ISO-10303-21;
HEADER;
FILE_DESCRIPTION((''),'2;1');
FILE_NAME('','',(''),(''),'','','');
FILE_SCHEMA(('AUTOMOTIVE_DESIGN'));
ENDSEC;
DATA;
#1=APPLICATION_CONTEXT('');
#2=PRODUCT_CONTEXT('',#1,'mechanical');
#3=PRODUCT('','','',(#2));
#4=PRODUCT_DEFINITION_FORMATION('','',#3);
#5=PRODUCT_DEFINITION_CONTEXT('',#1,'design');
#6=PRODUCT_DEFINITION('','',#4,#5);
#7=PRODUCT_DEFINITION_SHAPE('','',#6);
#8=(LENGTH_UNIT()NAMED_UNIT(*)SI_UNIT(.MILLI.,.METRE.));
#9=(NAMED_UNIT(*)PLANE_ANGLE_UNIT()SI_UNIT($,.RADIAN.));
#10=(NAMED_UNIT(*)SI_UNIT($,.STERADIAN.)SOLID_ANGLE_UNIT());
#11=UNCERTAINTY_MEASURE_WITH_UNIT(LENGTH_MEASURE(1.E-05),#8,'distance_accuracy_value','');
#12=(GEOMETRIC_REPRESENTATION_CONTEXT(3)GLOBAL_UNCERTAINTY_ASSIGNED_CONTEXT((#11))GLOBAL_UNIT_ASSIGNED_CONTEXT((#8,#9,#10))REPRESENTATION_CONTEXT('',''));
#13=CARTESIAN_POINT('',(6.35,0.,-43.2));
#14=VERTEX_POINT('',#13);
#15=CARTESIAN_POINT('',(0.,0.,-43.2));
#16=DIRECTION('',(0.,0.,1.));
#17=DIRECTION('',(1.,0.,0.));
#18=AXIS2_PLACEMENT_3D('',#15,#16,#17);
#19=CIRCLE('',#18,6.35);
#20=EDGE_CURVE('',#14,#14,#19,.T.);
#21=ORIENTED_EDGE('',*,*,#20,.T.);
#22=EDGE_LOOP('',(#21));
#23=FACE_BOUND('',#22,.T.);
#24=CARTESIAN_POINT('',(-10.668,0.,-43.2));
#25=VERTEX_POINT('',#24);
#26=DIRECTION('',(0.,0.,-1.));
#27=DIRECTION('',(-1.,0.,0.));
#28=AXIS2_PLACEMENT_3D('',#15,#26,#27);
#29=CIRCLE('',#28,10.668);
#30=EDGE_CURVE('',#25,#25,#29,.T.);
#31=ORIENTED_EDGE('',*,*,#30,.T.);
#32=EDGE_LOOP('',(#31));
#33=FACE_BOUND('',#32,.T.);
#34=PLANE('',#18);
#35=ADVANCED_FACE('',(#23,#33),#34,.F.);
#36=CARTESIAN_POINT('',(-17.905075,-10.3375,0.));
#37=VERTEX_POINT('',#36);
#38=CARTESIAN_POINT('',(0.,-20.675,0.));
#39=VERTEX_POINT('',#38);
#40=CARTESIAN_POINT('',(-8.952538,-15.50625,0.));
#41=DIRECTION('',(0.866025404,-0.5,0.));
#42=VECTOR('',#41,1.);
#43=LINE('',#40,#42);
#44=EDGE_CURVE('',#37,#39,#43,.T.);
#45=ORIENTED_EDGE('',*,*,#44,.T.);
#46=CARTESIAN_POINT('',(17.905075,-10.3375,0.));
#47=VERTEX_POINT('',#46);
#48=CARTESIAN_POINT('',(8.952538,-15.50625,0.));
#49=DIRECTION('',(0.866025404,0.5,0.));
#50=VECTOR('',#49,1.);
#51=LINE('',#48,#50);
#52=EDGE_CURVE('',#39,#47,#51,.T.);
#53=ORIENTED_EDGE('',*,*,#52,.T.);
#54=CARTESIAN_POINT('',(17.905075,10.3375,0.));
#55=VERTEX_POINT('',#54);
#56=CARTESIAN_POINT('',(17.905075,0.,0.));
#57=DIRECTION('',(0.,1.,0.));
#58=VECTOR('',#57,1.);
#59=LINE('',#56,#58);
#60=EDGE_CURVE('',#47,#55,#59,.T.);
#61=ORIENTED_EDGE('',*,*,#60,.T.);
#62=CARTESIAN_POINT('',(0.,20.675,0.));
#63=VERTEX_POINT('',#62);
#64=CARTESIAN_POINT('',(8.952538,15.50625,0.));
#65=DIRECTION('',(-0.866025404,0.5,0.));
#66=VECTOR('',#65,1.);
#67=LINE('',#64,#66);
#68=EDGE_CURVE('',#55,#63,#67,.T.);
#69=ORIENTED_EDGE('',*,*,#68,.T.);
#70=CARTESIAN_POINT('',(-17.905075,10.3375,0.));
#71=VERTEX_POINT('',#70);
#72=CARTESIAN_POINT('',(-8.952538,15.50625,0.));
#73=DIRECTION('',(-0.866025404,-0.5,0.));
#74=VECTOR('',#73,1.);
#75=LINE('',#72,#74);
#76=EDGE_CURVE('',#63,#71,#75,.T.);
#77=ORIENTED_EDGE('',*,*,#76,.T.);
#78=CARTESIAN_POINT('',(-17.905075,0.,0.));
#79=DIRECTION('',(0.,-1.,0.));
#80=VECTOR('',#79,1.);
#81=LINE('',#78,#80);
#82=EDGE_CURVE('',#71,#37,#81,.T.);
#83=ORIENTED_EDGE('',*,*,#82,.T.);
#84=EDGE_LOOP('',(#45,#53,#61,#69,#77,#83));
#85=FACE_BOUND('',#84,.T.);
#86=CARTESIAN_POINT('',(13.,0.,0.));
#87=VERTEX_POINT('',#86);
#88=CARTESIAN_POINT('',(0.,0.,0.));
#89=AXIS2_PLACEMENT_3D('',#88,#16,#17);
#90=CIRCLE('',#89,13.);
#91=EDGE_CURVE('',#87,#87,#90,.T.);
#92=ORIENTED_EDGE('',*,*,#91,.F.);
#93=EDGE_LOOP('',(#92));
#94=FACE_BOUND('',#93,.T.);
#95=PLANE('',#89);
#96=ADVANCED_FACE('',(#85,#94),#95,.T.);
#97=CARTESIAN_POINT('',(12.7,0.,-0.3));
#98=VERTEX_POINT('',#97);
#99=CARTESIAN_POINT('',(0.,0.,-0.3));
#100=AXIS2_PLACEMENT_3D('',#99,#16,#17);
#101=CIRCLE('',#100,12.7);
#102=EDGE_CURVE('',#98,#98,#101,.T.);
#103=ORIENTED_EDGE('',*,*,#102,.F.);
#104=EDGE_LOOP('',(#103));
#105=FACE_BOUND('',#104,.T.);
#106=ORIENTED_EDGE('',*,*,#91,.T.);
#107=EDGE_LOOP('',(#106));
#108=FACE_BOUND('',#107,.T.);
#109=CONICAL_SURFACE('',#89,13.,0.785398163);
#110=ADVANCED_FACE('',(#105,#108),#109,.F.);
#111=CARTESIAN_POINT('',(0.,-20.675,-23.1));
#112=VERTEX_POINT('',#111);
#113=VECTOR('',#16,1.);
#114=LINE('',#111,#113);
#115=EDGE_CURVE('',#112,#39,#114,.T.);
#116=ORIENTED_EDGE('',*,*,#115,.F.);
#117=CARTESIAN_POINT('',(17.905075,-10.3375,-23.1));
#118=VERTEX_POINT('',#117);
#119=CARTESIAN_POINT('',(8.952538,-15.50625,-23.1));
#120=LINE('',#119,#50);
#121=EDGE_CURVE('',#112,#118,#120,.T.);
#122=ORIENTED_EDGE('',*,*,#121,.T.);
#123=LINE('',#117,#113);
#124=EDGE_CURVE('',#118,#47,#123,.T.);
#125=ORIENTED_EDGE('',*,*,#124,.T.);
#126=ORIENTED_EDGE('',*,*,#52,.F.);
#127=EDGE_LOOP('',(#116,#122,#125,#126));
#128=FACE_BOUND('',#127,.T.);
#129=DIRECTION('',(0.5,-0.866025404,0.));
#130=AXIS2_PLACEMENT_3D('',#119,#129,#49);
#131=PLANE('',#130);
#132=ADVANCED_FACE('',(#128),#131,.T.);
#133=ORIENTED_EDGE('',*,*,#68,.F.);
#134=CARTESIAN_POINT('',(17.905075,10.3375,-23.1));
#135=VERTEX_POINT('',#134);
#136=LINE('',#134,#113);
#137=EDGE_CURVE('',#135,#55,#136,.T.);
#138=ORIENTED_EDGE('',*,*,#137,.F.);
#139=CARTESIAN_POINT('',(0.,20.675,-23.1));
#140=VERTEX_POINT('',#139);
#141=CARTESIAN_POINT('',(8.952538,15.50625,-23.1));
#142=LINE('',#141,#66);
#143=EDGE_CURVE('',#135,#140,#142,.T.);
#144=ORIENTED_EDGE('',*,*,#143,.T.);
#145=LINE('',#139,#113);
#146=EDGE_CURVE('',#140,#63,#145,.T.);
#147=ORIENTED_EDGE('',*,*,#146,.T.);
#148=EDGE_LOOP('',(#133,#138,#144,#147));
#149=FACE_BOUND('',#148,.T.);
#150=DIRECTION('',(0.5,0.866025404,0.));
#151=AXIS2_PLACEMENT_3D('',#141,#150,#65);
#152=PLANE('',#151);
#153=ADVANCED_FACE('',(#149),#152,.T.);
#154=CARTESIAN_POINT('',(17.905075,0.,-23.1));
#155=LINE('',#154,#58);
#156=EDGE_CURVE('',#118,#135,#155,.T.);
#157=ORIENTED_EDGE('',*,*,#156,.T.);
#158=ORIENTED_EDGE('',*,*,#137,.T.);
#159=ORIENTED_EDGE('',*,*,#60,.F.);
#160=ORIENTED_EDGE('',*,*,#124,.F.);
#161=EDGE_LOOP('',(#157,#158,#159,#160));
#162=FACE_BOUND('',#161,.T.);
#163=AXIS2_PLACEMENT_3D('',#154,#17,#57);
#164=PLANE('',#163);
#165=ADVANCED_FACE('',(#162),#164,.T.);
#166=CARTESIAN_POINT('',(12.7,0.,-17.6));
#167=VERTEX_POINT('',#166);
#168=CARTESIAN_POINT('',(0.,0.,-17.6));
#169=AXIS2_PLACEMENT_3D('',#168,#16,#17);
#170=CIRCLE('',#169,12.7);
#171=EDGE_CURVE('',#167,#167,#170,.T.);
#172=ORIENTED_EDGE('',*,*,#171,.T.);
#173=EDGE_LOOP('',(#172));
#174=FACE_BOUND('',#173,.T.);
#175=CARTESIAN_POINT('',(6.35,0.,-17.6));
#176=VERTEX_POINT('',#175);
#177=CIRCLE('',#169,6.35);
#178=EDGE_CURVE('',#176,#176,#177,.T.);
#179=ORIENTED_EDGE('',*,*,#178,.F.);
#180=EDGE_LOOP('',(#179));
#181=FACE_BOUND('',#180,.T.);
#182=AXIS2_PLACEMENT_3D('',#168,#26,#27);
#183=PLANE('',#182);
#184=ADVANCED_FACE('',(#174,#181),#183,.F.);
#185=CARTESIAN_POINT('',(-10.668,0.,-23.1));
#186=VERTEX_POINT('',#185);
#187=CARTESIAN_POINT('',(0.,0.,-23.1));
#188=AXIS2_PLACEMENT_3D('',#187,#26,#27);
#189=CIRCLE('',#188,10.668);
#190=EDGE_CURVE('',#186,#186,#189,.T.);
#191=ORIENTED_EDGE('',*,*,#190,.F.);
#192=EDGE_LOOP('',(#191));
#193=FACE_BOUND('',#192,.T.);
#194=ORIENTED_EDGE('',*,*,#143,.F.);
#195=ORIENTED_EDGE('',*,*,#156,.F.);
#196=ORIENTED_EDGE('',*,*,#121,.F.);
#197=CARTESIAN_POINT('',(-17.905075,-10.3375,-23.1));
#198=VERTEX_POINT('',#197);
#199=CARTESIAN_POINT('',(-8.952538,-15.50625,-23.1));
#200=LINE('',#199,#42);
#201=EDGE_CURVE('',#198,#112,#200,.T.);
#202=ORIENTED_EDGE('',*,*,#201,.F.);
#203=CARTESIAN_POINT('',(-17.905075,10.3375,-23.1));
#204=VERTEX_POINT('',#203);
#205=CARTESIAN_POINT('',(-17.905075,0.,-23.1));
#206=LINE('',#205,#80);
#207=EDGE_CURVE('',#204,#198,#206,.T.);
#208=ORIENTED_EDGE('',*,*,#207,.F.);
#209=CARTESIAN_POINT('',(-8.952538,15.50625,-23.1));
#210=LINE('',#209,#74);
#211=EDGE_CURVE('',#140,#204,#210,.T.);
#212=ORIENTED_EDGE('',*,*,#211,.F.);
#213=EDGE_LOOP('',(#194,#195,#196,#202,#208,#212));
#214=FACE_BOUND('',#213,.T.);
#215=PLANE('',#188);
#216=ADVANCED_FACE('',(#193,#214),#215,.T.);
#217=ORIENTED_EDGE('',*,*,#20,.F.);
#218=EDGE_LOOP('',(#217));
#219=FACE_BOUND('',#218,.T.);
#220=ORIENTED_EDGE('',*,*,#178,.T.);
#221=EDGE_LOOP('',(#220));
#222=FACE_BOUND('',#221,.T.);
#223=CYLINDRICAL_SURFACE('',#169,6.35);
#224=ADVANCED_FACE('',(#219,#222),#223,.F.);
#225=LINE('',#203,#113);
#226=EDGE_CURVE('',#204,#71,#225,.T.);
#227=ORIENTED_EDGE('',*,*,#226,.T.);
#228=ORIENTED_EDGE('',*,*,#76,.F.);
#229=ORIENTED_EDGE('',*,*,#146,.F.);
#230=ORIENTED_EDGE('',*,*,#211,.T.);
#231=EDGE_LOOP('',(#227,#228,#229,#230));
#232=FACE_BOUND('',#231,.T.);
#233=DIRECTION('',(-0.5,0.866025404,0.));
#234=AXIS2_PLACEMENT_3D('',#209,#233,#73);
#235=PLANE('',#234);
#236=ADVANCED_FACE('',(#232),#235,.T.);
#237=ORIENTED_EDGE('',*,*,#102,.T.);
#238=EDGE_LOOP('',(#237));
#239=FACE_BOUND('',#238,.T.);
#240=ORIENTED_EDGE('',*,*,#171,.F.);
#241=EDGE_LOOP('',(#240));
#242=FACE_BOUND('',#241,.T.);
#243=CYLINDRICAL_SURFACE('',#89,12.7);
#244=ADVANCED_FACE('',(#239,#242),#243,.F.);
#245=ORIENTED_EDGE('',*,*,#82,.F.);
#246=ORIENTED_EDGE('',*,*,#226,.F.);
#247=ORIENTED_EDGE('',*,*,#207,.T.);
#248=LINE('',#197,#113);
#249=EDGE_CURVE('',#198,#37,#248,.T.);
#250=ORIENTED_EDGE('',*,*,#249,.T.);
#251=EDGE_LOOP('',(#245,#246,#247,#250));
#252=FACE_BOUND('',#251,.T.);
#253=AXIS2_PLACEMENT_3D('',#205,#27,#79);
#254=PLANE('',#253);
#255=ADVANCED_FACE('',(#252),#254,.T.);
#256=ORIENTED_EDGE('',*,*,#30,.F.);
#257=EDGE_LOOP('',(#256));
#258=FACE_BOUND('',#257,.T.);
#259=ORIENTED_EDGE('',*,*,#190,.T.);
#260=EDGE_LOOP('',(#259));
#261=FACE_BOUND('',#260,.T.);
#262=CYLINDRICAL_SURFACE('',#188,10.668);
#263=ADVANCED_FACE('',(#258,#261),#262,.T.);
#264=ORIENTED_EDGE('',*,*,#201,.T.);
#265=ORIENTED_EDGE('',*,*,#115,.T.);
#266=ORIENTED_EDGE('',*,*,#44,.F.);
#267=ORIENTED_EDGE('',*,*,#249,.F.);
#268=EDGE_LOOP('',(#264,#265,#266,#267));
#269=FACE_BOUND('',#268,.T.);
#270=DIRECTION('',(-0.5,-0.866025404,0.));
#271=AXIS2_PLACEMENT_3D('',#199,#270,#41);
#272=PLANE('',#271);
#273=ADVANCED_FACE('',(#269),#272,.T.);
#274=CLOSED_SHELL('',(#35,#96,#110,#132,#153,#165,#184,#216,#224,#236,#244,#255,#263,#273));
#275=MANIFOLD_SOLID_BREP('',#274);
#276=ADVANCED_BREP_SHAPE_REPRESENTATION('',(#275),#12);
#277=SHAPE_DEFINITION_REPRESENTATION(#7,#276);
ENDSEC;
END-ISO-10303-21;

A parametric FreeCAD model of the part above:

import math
import FreeCAD as App
import Part
import Sketcher
from FreeCAD import Vector
Q = App.Units.Quantity

doc = App.newDocument("Part")
params = doc.addObject("Spreadsheet::Sheet", "Params")
for row, (alias, value) in enumerate([
    ("sketch1_diameter", "41.35 mm"),
    ("pad1_length", "43.2 mm"),
    ("pocket1_length", "23.1 mm"),
    ("sketch3_diameter", "25.4 mm"),
    ("hole_diameter", "25.4 mm"),
    ("hole_depth", "17.6 mm"),
    ("hole_csink_diameter", "26 mm"),
    ("sketch4_diameter", "12.7 mm"),
    ("hole2_diameter", "12.7 mm"),
    ("sketch5_diameter", "41.35 mm"),
    ("pocket2_length", "20.1 mm"),
], start=1):
    params.set(f"A{row}", alias)
    params.set(f"B{row}", "=" + value)
    params.setAlias(f"B{row}", alias)

body = doc.addObject("PartDesign::Body", "Body")

sketch1 = body.newObject("Sketcher::SketchObject", "Sketch")
sketch1.AttachmentSupport = (doc.getObject("XY_Plane"), [""])
sketch1.MapMode = "FlatFace"
sketch1.addGeometry(Part.Circle(Vector(0, 0, 0), Vector(0, 0, 1), 21), False)
sketch1.addConstraint([
    Sketcher.Constraint("Coincident", 0, 3, -1, 1),
    Sketcher.Constraint("Diameter", 0, Q("41.35 mm")),
])
sketch1.setExpression("Constraints[1]", "Params.sketch1_diameter")
pad1 = body.newObject("PartDesign::Pad", "Pad")
pad1.Profile = sketch1
pad1.setExpression("Length", "Params.pad1_length")
pad1.Reversed = True

sketch2 = body.newObject("Sketcher::SketchObject", "Sketch001")
sketch2.AttachmentSupport = (doc.getObject("XY_Plane"), [""])
sketch2.MapMode = "FlatFace"
sketch2.addGeometry([
    Part.LineSegment(Vector(-18, 10, 0), Vector(0, 21, 0)),
    Part.ArcOfCircle(Part.Circle(Vector(0, 0, 0), Vector(0, 0, 1), 21), math.radians(90), math.radians(150)),
    Part.ArcOfCircle(Part.Circle(Vector(0, 0, 0), Vector(0, 0, 1), 21), math.radians(30), math.radians(90)),
    Part.LineSegment(Vector(0, 21, 0), Vector(18, 10, 0)),
    Part.LineSegment(Vector(-18, -10, 0), Vector(-18, 10, 0)),
    Part.ArcOfCircle(Part.Circle(Vector(0, 0, 0), Vector(0, 0, 1), 21), math.radians(150), math.radians(210)),
    Part.LineSegment(Vector(0, -21, 0), Vector(-18, -10, 0)),
    Part.ArcOfCircle(Part.Circle(Vector(0, 0, 0), Vector(0, 0, 1), 21), math.radians(-150), math.radians(-90)),
    Part.ArcOfCircle(Part.Circle(Vector(0, 0, 0), Vector(0, 0, 1), 21), math.radians(-90), math.radians(-30)),
    Part.LineSegment(Vector(18, -10, 0), Vector(0, -21, 0)),
    Part.ArcOfCircle(Part.Circle(Vector(0, 0, 0), Vector(0, 0, 1), 21), math.radians(0), math.radians(30)),
    Part.LineSegment(Vector(18, 10, 0), Vector(18, -10, 0)),
    Part.ArcOfCircle(Part.Circle(Vector(0, 0, 0), Vector(0, 0, 1), 21), math.radians(-30), math.radians(0)),
], False)
sketch2.addConstraint([
    Sketcher.Constraint("Coincident", 0, 1, 1, 2),
    Sketcher.Constraint("Coincident", 1, 1, 0, 2),
    Sketcher.Constraint("Coincident", 2, 1, 3, 2),
    Sketcher.Constraint("Coincident", 3, 1, 2, 2),
    Sketcher.Constraint("Coincident", 4, 1, 5, 2),
    Sketcher.Constraint("Coincident", 5, 1, 4, 2),
    Sketcher.Constraint("Coincident", 6, 1, 7, 2),
    Sketcher.Constraint("Coincident", 7, 1, 6, 2),
    Sketcher.Constraint("Coincident", 8, 1, 9, 2),
    Sketcher.Constraint("Coincident", 9, 1, 8, 2),
    Sketcher.Constraint("Coincident", 10, 2, 11, 1),
    Sketcher.Constraint("Coincident", 11, 2, 12, 1),
    Sketcher.Constraint("Tangent", 12, 2, 10, 1),
    Sketcher.Constraint("Vertical", 4),
    Sketcher.Constraint("Vertical", 11),
    Sketcher.Constraint("Coincident", 1, 3, -1, 1),
    Sketcher.Constraint("Coincident", 2, 3, -1, 1),
    Sketcher.Constraint("Coincident", 5, 3, -1, 1),
    Sketcher.Constraint("Coincident", 7, 3, -1, 1),
    Sketcher.Constraint("Coincident", 8, 3, -1, 1),
    Sketcher.Constraint("Coincident", 10, 3, -1, 1),
    Sketcher.Constraint("Coincident", 3, 1, 1, 1),
    Sketcher.Constraint("Coincident", 5, 1, 0, 1),
    Sketcher.Constraint("Coincident", 7, 1, 4, 1),
    Sketcher.Constraint("Coincident", 8, 1, 6, 1),
    Sketcher.Constraint("Coincident", 10, 2, 2, 1),
    Sketcher.Constraint("Coincident", 11, 2, 9, 1),
    Sketcher.Constraint("PointOnObject", 1, 1, -2),
    Sketcher.Constraint("PointOnObject", 6, 1, -2),
    Sketcher.Constraint("PointOnObject", 12, 2, -1),
    Sketcher.Constraint("Parallel", 3, 6),
    Sketcher.Constraint("Angle", 0, Q("30 deg")),
    Sketcher.Constraint("Radius", 1, Q("20.675 mm")),
])
pocket1 = body.newObject("PartDesign::Pocket", "Pocket")
pocket1.Profile = sketch2
pocket1.setExpression("Length", "Params.pocket1_length")

sketch3 = body.newObject("Sketcher::SketchObject", "Sketch002")
sketch3.AttachmentSupport = (doc.getObject("XY_Plane"), [""])
sketch3.MapMode = "FlatFace"
sketch3.addGeometry(Part.Circle(Vector(0, 0, 0), Vector(0, 0, 1), 13), False)
sketch3.addConstraint([
    Sketcher.Constraint("Coincident", 0, 3, -1, 1),
    Sketcher.Constraint("Diameter", 0, Q("25.4 mm")),
])
sketch3.setExpression("Constraints[1]", "Params.sketch3_diameter")
doc.recompute()
hole = body.newObject("PartDesign::Hole", "Hole")
hole.Profile = sketch3
hole.ThreadType = "None"
hole.setExpression("Diameter", "Params.hole_diameter")
hole.DepthType = "Dimension"
hole.setExpression("Depth", "Params.hole_depth")
hole.DrillPoint = "Flat"
hole.HoleCutType = "Countersink"
hole.setExpression("HoleCutDiameter", "Params.hole_csink_diameter")
hole.HoleCutCountersinkAngle = 90

sketch4 = body.newObject("Sketcher::SketchObject", "Sketch003")
sketch4.AttachmentSupport = (doc.getObject("XY_Plane"), [""])
sketch4.MapMode = "FlatFace"
sketch4.AttachmentOffset = App.Placement(Vector(0, 0, -17.6), App.Rotation())
sketch4.addGeometry(Part.Circle(Vector(0, 0, 0), Vector(0, 0, 1), 6), False)
sketch4.addConstraint([
    Sketcher.Constraint("Coincident", 0, 3, -1, 1),
    Sketcher.Constraint("Diameter", 0, Q("12.7 mm")),
])
sketch4.setExpression("Constraints[1]", "Params.sketch4_diameter")
doc.recompute()
hole2 = body.newObject("PartDesign::Hole", "Hole001")
hole2.Profile = sketch4
hole2.ThreadType = "None"
hole2.setExpression("Diameter", "Params.hole2_diameter")
hole2.DepthType = "ThroughAll"

sketch5 = body.newObject("Sketcher::SketchObject", "Sketch004")
sketch5.AttachmentSupport = (doc.getObject("XY_Plane"), [""])
sketch5.MapMode = "FlatFace"
sketch5.AttachmentOffset = App.Placement(Vector(0, 0, -23.1), App.Rotation())
sketch5.addGeometry([
    Part.Circle(Vector(0, 0, 0), Vector(0, 0, 1), 21),
    Part.Circle(Vector(0, 0, 0), Vector(0, 0, 1), 11),
], False)
sketch5.addConstraint([
    Sketcher.Constraint("Coincident", 0, 3, -1, 1),
    Sketcher.Constraint("Coincident", 1, 3, -1, 1),
    Sketcher.Constraint("Diameter", 0, Q("41.35 mm")),
    Sketcher.Constraint("Diameter", 1, Q("21.336 mm")),
])
sketch5.setExpression("Constraints[2]", "Params.sketch5_diameter")
pocket2 = body.newObject("PartDesign::Pocket", "Pocket001")
pocket2.Profile = sketch5
pocket2.setExpression("Length", "Params.pocket2_length")

doc.recompute()
